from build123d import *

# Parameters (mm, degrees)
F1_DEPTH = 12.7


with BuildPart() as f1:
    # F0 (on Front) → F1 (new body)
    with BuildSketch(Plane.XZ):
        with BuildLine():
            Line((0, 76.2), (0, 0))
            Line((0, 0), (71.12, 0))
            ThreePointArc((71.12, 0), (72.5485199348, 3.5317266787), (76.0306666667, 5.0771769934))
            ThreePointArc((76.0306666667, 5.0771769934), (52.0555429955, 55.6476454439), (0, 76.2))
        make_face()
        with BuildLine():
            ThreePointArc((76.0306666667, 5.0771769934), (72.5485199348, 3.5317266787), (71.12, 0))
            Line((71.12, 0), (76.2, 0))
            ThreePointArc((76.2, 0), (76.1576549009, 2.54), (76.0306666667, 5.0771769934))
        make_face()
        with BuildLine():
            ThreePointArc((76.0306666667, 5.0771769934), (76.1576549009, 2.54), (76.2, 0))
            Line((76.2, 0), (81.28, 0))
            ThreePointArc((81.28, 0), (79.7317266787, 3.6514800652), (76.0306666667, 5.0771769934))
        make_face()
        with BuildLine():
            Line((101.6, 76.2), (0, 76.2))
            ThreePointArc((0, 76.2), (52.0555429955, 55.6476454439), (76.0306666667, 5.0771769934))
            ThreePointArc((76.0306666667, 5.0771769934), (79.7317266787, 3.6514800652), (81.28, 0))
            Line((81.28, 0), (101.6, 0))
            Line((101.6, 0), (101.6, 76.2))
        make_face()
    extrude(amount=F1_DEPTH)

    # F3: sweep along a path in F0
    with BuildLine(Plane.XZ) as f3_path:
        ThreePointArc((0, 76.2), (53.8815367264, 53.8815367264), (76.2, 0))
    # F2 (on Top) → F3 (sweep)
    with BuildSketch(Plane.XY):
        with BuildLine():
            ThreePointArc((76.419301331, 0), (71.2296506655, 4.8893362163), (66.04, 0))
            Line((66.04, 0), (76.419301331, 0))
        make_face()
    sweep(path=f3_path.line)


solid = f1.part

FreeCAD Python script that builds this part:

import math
import FreeCAD as App
import Part
import Sketcher
Q = App.Units.Quantity

doc = App.newDocument("Part")
body = doc.addObject("PartDesign::Body", "Body")

# Sketch on XZ plane
sketch1 = body.newObject("Sketcher::SketchObject", "Sketch")
sketch1.AttachmentSupport = (doc.getObject("XZ_Plane"), [""])
sketch1.MapMode = "FlatFace"
sketch1.addGeometry(Part.LineSegment(App.Vector(0, 76, 0), App.Vector(0, 0, 0)), False)
sketch1.addGeometry(Part.LineSegment(App.Vector(0, 0, 0), App.Vector(102, 0, 0)), False)
sketch1.addGeometry(Part.LineSegment(App.Vector(102, 0, 0), App.Vector(102, 76, 0)), False)
sketch1.addGeometry(Part.LineSegment(App.Vector(102, 76, 0), App.Vector(0, 76, 0)), False)
sketch1.addConstraint(Sketcher.Constraint("Coincident", 0, 2, 1, 1))
sketch1.addConstraint(Sketcher.Constraint("Coincident", 1, 2, 2, 1))
sketch1.addConstraint(Sketcher.Constraint("Coincident", 2, 2, 3, 1))
sketch1.addConstraint(Sketcher.Constraint("Coincident", 3, 2, 0, 1))
sketch1.addConstraint(Sketcher.Constraint("Vertical", 0))
sketch1.addConstraint(Sketcher.Constraint("Horizontal", 1))
sketch1.addConstraint(Sketcher.Constraint("Vertical", 2))
sketch1.addConstraint(Sketcher.Constraint("Horizontal", 3))
sketch1.addConstraint(Sketcher.Constraint("Coincident", 0, 2, -1, 1))
sketch1.addConstraint(Sketcher.Constraint("DistanceX", 1, 1, 1, 2, Q("4 in")))
sketch1.addConstraint(Sketcher.Constraint("DistanceY", 0, 2, 0, 1, Q("3 in")))
pad1 = body.newObject("PartDesign::Pad", "Pad")
pad1.Profile = sketch1
pad1.Length = Q("0.5 in")

# Sketch on XY plane
sketch2 = body.newObject("Sketcher::SketchObject", "Sketch001")
sketch2.AttachmentSupport = (doc.getObject("XY_Plane"), [""])
sketch2.MapMode = "FlatFace"
sketch2.addGeometry(Part.ArcOfCircle(Part.Circle(App.Vector(71.229651, -0.309537, 0), App.Vector(0, 0, 1), 5.198874), math.radians(3.413371), math.radians(176.586629)), False)
sketch2.addGeometry(Part.LineSegment(App.Vector(66.04, 0, 0), App.Vector(76.419301, 0, 0)), False)
sketch2.addConstraint(Sketcher.Constraint("Coincident", 0, 1, 1, 2))
sketch2.addConstraint(Sketcher.Constraint("Coincident", 1, 1, 0, 2))
sketch2.addConstraint(Sketcher.Constraint("Horizontal", 1))
sketch2.addConstraint(Sketcher.Constraint("PointOnObject", 0, 1, -1))
sketch2.addConstraint(Sketcher.Constraint("DistanceX", -1, 1, 1, 1, Q("2.6 in")))
sketch2.addConstraint(Sketcher.Constraint("DistanceX", 1, 1, 1, 2, Q("10.379301 mm")))
sketch2.addConstraint(Sketcher.Constraint("Radius", 0, Q("5.198874 mm")))

# Sketch on XZ plane
sketch3 = body.newObject("Sketcher::SketchObject", "Sketch002")
sketch3.AttachmentSupport = (doc.getObject("XZ_Plane"), [""])
sketch3.MapMode = "FlatFace"
sketch3.addGeometry(Part.ArcOfCircle(Part.Circle(App.Vector(0, 0, 0), App.Vector(0, 0, 1), 76), math.radians(0), math.radians(90)), False)
sketch3.addConstraint(Sketcher.Constraint("Coincident", 0, 3, -1, 1))
sketch3.addConstraint(Sketcher.Constraint("PointOnObject", 0, 1, -1))
sketch3.addConstraint(Sketcher.Constraint("PointOnObject", 0, 2, -2))
sketch3.addConstraint(Sketcher.Constraint("Radius", 0, Q("3 in")))
doc.recompute()

additivepipe = body.newObject("PartDesign::AdditivePipe", "AdditivePipe")
additivepipe.Profile = sketch2
additivepipe.Spine = (sketch3, ["Edge1"])

doc.recompute()
